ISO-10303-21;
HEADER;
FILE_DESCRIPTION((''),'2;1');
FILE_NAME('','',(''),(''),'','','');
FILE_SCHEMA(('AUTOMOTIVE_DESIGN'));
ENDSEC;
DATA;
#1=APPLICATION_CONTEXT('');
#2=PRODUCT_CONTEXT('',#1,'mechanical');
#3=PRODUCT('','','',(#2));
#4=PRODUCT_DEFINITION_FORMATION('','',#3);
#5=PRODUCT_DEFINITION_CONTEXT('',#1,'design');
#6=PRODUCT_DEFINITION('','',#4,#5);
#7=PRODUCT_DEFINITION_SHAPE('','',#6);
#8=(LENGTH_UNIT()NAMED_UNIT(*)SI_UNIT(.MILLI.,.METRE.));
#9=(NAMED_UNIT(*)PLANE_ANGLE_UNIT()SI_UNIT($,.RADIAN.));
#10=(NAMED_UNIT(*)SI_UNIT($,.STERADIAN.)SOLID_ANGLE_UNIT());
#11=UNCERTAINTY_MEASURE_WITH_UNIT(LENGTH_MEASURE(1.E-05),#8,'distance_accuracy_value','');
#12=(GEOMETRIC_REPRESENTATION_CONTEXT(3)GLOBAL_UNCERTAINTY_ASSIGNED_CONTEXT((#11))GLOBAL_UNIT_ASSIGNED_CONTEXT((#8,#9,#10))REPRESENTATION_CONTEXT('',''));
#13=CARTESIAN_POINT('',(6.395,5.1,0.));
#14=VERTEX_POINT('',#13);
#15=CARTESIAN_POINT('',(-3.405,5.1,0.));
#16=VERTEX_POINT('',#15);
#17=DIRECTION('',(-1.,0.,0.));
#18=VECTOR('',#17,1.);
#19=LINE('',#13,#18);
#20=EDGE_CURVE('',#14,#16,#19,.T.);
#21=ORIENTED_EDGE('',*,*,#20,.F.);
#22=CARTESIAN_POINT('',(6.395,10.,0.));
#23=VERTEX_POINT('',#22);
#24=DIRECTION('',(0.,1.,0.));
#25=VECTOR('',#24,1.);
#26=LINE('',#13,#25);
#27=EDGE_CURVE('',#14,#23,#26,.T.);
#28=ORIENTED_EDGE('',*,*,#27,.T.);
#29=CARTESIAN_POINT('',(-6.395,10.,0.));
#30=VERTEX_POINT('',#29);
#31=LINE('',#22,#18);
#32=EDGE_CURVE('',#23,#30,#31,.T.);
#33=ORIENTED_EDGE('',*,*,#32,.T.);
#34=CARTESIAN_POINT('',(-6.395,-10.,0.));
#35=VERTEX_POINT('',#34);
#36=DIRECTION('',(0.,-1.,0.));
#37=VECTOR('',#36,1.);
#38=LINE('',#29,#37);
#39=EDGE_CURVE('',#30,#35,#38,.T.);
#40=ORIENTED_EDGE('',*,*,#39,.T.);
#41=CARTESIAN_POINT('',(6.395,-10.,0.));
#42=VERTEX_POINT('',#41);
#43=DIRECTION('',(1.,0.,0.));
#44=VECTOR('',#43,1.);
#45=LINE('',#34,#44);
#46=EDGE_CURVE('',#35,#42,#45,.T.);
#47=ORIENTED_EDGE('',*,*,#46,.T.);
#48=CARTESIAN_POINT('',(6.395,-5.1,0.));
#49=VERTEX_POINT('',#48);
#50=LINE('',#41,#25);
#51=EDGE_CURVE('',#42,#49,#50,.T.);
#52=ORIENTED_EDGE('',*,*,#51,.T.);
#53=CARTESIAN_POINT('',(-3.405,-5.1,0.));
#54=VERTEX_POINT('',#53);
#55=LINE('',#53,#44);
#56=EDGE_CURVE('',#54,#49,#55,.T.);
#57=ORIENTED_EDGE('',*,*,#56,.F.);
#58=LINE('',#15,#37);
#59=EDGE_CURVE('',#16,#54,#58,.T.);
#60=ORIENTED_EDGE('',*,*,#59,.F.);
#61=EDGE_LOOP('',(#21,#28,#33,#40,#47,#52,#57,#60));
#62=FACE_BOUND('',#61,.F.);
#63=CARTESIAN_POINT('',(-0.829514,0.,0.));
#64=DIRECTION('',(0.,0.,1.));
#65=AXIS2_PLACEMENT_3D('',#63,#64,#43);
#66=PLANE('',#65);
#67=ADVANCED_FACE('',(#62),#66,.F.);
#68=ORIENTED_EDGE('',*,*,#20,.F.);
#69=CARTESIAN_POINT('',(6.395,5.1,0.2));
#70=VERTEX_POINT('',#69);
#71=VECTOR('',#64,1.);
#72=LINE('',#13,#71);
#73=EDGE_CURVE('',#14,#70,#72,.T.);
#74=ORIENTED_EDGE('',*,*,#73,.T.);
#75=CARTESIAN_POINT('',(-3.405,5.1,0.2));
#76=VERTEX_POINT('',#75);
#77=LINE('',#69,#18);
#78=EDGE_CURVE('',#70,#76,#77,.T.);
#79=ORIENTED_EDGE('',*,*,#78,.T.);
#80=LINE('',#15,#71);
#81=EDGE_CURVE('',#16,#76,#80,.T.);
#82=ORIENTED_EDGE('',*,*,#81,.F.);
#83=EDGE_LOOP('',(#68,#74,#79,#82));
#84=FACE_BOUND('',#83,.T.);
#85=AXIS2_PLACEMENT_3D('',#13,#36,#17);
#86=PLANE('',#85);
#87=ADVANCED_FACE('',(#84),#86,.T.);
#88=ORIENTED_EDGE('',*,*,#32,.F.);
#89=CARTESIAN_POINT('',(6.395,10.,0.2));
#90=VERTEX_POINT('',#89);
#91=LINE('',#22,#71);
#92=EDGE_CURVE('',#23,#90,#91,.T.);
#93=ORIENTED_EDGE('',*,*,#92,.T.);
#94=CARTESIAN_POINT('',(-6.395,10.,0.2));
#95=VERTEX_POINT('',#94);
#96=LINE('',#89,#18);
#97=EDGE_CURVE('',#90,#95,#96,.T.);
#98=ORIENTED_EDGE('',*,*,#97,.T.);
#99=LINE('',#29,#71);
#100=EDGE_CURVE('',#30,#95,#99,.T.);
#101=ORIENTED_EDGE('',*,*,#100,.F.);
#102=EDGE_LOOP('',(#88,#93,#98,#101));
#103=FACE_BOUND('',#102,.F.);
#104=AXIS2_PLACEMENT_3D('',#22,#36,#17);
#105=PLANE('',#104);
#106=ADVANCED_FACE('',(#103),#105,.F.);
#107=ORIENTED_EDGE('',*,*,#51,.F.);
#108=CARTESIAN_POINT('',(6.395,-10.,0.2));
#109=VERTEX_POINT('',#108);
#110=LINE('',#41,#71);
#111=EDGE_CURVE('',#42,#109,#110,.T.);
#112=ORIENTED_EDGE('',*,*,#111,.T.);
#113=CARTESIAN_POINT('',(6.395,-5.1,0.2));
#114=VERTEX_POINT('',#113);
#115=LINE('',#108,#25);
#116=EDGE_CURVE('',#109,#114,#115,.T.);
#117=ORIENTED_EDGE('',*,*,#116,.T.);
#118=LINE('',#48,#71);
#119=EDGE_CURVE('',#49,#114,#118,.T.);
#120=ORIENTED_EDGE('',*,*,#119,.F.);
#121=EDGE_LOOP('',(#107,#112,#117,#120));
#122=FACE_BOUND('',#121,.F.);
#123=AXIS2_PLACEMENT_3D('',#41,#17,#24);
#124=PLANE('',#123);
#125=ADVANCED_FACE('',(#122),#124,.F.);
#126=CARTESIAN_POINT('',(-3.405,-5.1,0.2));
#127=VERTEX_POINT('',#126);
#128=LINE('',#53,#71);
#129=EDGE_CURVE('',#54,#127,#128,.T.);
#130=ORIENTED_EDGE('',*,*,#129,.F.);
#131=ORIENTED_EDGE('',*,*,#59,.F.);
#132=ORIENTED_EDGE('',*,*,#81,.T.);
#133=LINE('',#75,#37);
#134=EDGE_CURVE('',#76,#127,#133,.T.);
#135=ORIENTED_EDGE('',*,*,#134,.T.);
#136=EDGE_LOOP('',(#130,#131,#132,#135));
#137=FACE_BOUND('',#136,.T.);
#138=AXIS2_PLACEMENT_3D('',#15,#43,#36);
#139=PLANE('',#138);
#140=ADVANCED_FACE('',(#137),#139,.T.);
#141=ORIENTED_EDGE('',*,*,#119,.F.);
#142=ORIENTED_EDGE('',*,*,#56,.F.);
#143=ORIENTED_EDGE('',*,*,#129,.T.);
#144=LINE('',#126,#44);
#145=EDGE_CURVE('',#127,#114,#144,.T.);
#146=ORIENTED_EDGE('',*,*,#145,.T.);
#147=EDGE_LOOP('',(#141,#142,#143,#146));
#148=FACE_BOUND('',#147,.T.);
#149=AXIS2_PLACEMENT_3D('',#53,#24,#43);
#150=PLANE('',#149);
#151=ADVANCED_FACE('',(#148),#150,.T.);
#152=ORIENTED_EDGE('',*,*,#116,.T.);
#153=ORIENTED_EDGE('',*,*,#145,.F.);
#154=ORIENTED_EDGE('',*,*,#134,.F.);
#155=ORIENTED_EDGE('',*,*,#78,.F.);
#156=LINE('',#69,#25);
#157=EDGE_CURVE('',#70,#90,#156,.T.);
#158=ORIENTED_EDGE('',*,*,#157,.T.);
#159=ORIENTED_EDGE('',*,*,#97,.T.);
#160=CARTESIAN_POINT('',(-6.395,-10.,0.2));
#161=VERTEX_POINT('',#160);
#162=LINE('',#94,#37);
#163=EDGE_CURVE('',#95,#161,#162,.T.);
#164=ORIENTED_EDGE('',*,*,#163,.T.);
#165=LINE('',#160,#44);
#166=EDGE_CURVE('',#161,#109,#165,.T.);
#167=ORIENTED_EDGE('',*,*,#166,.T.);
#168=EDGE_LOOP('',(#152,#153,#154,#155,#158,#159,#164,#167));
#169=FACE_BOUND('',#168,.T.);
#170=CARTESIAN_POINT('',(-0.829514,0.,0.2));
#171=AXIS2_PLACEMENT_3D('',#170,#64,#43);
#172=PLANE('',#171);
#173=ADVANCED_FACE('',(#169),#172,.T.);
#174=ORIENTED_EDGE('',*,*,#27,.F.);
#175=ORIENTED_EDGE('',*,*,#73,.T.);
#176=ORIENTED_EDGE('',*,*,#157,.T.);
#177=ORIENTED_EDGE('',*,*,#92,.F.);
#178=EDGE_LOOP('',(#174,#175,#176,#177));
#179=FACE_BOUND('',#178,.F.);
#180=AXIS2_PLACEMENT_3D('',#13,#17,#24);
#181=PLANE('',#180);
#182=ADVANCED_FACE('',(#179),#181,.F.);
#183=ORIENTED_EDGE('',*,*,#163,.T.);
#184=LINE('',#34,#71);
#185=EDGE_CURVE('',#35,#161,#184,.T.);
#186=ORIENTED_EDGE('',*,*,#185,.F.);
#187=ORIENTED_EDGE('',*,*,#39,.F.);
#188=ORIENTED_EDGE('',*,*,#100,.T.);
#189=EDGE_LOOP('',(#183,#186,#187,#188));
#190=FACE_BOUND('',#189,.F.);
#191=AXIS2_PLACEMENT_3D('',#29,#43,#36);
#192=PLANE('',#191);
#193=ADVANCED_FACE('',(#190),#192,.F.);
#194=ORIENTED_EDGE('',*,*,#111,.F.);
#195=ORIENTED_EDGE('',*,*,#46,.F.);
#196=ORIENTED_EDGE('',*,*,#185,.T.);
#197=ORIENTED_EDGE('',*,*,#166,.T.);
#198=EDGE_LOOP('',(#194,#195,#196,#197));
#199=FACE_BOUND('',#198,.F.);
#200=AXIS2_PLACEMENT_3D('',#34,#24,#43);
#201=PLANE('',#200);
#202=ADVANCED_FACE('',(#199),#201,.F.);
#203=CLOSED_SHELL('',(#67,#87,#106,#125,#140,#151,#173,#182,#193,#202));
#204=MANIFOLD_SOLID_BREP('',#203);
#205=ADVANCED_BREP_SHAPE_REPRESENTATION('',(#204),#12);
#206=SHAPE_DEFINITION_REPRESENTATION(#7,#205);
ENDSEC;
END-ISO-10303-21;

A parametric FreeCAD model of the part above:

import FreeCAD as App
import Part
import Sketcher
Q = App.Units.Quantity

doc = App.newDocument("Part")
params = doc.addObject("Spreadsheet::Sheet", "Params")
for row, (alias, value) in enumerate([
    ("sketch1_height", "20 mm"),
    ("sketch1_width", "9.8 mm"),
    ("sketch1_height2", "4.9 mm"),
    ("pad1_length", "0.2 mm"),
], start=1):
    params.set(f"A{row}", alias)
    params.set(f"B{row}", "=" + value)
    params.setAlias(f"B{row}", alias)

body = doc.addObject("PartDesign::Body", "Body")

sketch1 = body.newObject("Sketcher::SketchObject", "Sketch")
sketch1.AttachmentSupport = (doc.getObject("XY_Plane"), [""])
sketch1.MapMode = "FlatFace"
sketch1.addGeometry([
    Part.LineSegment(App.Vector(-6.4, 10, 0), App.Vector(-6.4, -10, 0)),
    Part.LineSegment(App.Vector(-6.4, -10, 0), App.Vector(6.4, -10, 0)),
    Part.LineSegment(App.Vector(6.4, -10, 0), App.Vector(6.4, -5.1, 0)),
    Part.LineSegment(App.Vector(6.4, -5.1, 0), App.Vector(-3.4, -5.1, 0)),
    Part.LineSegment(App.Vector(-3.4, -5.1, 0), App.Vector(-3.4, 5.1, 0)),
    Part.LineSegment(App.Vector(-3.4, 5.1, 0), App.Vector(6.4, 5.1, 0)),
    Part.LineSegment(App.Vector(6.4, 5.1, 0), App.Vector(6.4, 10, 0)),
    Part.LineSegment(App.Vector(6.4, 10, 0), App.Vector(-6.4, 10, 0)),
], False)
sketch1.addConstraint([
    Sketcher.Constraint("Coincident", 0, 2, 1, 1),
    Sketcher.Constraint("Coincident", 1, 2, 2, 1),
    Sketcher.Constraint("Coincident", 2, 2, 3, 1),
    Sketcher.Constraint("Coincident", 3, 2, 4, 1),
    Sketcher.Constraint("Coincident", 4, 2, 5, 1),
    Sketcher.Constraint("Coincident", 5, 2, 6, 1),
    Sketcher.Constraint("Coincident", 6, 2, 7, 1),
    Sketcher.Constraint("Coincident", 7, 2, 0, 1),
    Sketcher.Constraint("Vertical", 0),
    Sketcher.Constraint("Horizontal", 1),
    Sketcher.Constraint("Vertical", 2),
    Sketcher.Constraint("Horizontal", 3),
    Sketcher.Constraint("Vertical", 4),
    Sketcher.Constraint("Horizontal", 5),
    Sketcher.Constraint("Vertical", 6),
    Sketcher.Constraint("Horizontal", 7),
    Sketcher.Constraint("Symmetric", 0, 2, 6, 2, -1, 1),
    Sketcher.Constraint("Symmetric", 2, 2, 5, 2, -1),
    Sketcher.Constraint("DistanceY", 0, 2, 0, 1, Q("20 mm")),
    Sketcher.Constraint("DistanceX", 3, 2, 3, 1, Q("9.8 mm")),
    Sketcher.Constraint("DistanceY", 2, 1, 2, 2, Q("4.9 mm")),
    Sketcher.Constraint("DistanceX", 0, 2, -1, 1, Q("6.395 mm")),
])
sketch1.setExpression("Constraints[18]", "Params.sketch1_height")
sketch1.setExpression("Constraints[19]", "Params.sketch1_width")
sketch1.setExpression("Constraints[20]", "Params.sketch1_height2")
pad1 = body.newObject("PartDesign::Pad", "Pad")
pad1.Profile = sketch1
pad1.setExpression("Length", "Params.pad1_length")

doc.recompute()
